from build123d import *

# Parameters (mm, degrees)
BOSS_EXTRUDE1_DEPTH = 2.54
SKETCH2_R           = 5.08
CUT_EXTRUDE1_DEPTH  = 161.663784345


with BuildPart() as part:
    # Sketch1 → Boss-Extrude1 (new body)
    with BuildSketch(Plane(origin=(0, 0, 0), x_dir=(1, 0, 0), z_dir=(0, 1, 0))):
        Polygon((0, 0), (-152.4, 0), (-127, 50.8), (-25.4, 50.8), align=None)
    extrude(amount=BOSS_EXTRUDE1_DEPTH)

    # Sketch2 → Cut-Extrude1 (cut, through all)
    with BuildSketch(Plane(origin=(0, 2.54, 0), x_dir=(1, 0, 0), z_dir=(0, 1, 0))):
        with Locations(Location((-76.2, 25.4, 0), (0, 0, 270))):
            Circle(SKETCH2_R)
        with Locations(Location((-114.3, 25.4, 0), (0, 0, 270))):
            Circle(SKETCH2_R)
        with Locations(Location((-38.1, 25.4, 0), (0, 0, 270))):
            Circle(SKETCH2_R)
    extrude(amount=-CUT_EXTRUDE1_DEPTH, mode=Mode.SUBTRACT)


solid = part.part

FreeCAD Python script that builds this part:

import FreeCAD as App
import Part
import Sketcher
Q = App.Units.Quantity


def add_polygon(sketch, points):
    """Adds a closed chain of lines whose ends are joined by coincident constraints."""
    first, n = sketch.GeometryCount, len(points)
    for a, b in zip(points, points[1:] + points[:1]):
        sketch.addGeometry(Part.LineSegment(App.Vector(*a, 0), App.Vector(*b, 0)), False)
    for i in range(n):
        sketch.addConstraint(Sketcher.Constraint("Coincident", first + i, 2, first + (i + 1) % n, 1))

doc = App.newDocument("Part")
body = doc.addObject("PartDesign::Body", "Body")

# Sketch on XZ plane
sketch1 = body.newObject("Sketcher::SketchObject", "Sketch")
sketch1.AttachmentSupport = (doc.getObject("XZ_Plane"), [""])
sketch1.MapMode = "FlatFace"
add_polygon(sketch1, [(-152, 0), (0, 0), (-25, -51), (-127, -51)])  # lines 0-3
sketch1.addConstraint([
    Sketcher.Constraint("Horizontal", 0),
    Sketcher.Constraint("Horizontal", 2),
    Sketcher.Constraint("Coincident", 0, 2, -1, 1),
    Sketcher.Constraint("Equal", 1, 3),
    Sketcher.Constraint("DistanceX", 0, 1, 0, 2, Q("6 in")),
    Sketcher.Constraint("DistanceX", 2, 2, 2, 1, Q("4 in")),
    Sketcher.Constraint("DistanceY", 1, 2, -1, 1, Q("2 in")),
])
pad1 = body.newObject("PartDesign::Pad", "Pad")
pad1.Profile = sketch1
pad1.Length = Q("0.1 in")
pad1.Reversed = True

# Sketch on XZ plane
sketch2 = body.newObject("Sketcher::SketchObject", "Sketch001")
sketch2.AttachmentSupport = (doc.getObject("XZ_Plane"), [""])
sketch2.MapMode = "FlatFace"
sketch2.AttachmentOffset = App.Placement(App.Vector(0, 0, -0.1 * 25.4), App.Rotation())
sketch2.addGeometry([
    Part.Circle(App.Vector(-76, -25, 0), App.Vector(0, 0, 1), 5),
    Part.Circle(App.Vector(-114, -25, 0), App.Vector(0, 0, 1), 5),
    Part.Circle(App.Vector(-38, -25, 0), App.Vector(0, 0, 1), 5),
], False)
sketch2.addConstraint([
    Sketcher.Constraint("Equal", 0, 1),
    Sketcher.Constraint("Equal", 1, 2),
    Sketcher.Constraint("Horizontal", 0, 3, 1, 3),
    Sketcher.Constraint("Horizontal", 1, 3, 2, 3),
    Sketcher.Constraint("Diameter", 0, Q("0.4 in")),
    Sketcher.Constraint("DistanceX", 0, 3, -1, 1, Q("3 in")),
    Sketcher.Constraint("DistanceY", 0, 3, -1, 1, Q("1 in")),
    Sketcher.Constraint("DistanceX", 1, 3, 2, 3, Q("3 in")),
    Sketcher.Constraint("DistanceX", 1, 3, -1, 1, Q("4.5 in")),
])
pocket1 = body.newObject("PartDesign::Pocket", "Pocket")
pocket1.Profile = sketch2
pocket1.Type = "ThroughAll"
pocket1.Reversed = True

doc.recompute()
